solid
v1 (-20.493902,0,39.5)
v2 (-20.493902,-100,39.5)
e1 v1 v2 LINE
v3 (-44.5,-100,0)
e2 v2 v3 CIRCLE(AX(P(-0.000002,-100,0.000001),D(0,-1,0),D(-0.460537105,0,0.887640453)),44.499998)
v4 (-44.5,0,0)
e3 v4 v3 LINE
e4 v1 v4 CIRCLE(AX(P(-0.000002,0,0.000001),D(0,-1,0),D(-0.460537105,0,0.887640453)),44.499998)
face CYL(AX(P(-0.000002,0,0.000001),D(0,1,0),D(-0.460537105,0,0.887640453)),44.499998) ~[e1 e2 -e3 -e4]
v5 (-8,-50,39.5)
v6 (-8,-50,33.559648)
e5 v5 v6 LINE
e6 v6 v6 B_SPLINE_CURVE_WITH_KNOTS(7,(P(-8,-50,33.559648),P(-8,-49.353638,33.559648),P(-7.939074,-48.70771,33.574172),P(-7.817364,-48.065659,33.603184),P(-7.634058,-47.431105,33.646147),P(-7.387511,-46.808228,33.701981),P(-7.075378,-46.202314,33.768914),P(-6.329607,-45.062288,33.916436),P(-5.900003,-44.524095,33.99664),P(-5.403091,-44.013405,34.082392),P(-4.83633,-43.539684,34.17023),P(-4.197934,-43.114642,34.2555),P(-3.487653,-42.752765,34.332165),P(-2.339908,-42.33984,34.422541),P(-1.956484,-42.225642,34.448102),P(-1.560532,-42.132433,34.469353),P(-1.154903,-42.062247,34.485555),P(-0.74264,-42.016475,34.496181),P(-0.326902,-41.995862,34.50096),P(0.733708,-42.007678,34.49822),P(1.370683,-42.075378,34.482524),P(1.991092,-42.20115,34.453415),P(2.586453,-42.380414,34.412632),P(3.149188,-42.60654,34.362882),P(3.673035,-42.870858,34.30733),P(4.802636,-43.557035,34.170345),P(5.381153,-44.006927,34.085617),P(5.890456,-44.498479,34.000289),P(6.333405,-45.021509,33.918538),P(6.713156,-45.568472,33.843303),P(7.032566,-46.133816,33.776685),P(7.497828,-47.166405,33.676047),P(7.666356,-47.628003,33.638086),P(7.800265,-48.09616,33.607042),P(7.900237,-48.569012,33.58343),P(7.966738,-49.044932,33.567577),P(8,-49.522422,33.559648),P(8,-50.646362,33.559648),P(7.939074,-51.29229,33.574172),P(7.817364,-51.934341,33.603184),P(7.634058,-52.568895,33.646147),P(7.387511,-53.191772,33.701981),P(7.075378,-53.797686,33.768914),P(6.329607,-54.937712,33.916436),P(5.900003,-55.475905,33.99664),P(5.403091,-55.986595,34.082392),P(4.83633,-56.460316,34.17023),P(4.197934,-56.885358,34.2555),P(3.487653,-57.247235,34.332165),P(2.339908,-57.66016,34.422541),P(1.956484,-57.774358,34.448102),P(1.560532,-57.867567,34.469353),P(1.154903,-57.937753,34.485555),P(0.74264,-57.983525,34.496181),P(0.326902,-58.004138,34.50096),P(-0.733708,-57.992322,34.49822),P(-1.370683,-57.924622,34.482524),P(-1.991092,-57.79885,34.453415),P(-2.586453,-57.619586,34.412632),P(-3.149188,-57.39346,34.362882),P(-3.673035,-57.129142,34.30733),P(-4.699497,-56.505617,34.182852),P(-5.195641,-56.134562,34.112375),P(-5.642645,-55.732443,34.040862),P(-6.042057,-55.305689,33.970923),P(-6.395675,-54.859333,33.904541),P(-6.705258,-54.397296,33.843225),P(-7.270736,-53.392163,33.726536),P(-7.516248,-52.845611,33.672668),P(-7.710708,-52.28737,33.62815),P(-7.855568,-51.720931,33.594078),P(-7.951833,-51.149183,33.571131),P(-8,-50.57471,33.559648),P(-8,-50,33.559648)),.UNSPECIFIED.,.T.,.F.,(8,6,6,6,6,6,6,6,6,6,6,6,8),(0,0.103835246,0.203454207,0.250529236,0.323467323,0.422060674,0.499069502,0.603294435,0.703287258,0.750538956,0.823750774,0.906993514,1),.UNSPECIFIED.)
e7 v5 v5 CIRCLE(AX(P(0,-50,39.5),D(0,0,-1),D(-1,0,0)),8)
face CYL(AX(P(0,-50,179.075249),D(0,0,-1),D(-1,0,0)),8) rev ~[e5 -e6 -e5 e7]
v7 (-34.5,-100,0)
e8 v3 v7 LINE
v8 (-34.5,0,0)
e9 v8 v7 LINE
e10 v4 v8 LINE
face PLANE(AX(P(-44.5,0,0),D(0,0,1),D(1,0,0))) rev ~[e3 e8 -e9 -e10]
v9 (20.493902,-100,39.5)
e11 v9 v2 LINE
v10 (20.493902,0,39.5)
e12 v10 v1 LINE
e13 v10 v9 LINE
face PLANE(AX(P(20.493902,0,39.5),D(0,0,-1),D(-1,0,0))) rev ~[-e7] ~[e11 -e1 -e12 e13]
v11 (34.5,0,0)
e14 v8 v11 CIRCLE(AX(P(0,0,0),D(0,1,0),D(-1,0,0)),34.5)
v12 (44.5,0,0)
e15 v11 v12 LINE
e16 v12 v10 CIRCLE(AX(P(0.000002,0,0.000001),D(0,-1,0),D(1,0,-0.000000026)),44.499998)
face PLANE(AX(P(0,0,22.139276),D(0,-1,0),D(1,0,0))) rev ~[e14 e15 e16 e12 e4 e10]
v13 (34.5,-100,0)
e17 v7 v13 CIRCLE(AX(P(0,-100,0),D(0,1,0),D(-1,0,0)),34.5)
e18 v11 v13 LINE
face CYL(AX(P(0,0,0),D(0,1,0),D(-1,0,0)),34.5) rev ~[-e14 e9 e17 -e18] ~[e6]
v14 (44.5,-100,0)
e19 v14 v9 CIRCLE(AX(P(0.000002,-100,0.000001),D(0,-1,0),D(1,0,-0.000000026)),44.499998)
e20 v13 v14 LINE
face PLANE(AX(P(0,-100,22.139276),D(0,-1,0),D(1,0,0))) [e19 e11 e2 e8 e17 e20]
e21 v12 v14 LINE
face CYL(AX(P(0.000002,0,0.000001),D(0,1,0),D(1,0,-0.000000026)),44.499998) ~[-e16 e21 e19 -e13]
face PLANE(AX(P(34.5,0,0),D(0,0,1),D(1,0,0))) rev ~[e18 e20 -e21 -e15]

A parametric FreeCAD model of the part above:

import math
import FreeCAD as App
import Part
import Sketcher
from FreeCAD import Vector

doc = App.newDocument("Part")
params = doc.addObject("Spreadsheet::Sheet", "Params")
for row, (alias, value) in enumerate([
    ("sketch1_radius", "44.499998 mm"),
    ("sketch1_radius2", "34.5 mm"),
    ("pad1_length", "100 mm"),
    ("sketch2_diameter", "16 mm"),
    ("hole_diameter", "16 mm"),
], start=1):
    params.set(f"A{row}", alias)
    params.set(f"B{row}", "=" + value)
    params.setAlias(f"B{row}", alias)

body = doc.addObject("PartDesign::Body", "Body")

sketch1 = body.newObject("Sketcher::SketchObject", "Sketch")
sketch1.AttachmentSupport = (doc.getObject("XZ_Plane"), [""])
sketch1.MapMode = "FlatFace"
sketch1.addGeometry([
    Part.LineSegment(Vector(34.5, 0, 0), Vector(44.5, 0, 0)),
    Part.ArcOfCircle(Part.Circle(Vector(0.000002, 0.000001, 0), Vector(0, 0, 1), 44.499998), math.radians(-0.000001), math.radians(62.578229)),
    Part.LineSegment(Vector(20.493902, 39.5, 0), Vector(-20.493902, 39.5, 0)),
    Part.ArcOfCircle(Part.Circle(Vector(-0.000002, 0.000001, 0), Vector(0, 0, 1), 44.499998), math.radians(117.421771), math.radians(180.000001)),
    Part.LineSegment(Vector(-44.5, 0, 0), Vector(-34.5, 0, 0)),
    Part.ArcOfCircle(Part.Circle(Vector(0, 0, 0), Vector(0, 0, 1), 34.5), math.radians(0), math.radians(180)),
], False)
sketch1.addConstraint([
    Sketcher.Constraint("Coincident", 0, 2, 1, 1),
    Sketcher.Constraint("Coincident", 1, 2, 2, 1),
    Sketcher.Constraint("Coincident", 2, 2, 3, 1),
    Sketcher.Constraint("Coincident", 3, 2, 4, 1),
    Sketcher.Constraint("Coincident", 4, 2, 5, 2),
    Sketcher.Constraint("Coincident", 5, 1, 0, 1),
    Sketcher.Constraint("Horizontal", 0),
    Sketcher.Constraint("Horizontal", 2),
    Sketcher.Constraint("Horizontal", 4),
    Sketcher.Constraint("Coincident", 1, 3, -1, 1),
    Sketcher.Constraint("Coincident", 3, 3, -1, 1),
    Sketcher.Constraint("Coincident", 5, 3, -1, 1),
    Sketcher.Constraint("Equal", 1, 3),
    Sketcher.Constraint("PointOnObject", 0, 2, -1),
    Sketcher.Constraint("PointOnObject", 3, 2, -1),
    Sketcher.Constraint("Radius", 1, 44.499998),
    Sketcher.Constraint("Radius", 5, 34.5),
    Sketcher.Constraint("DistanceY", -1, 1, 1, 2, 39.5),
])
sketch1.setExpression("Constraints[15]", "Params.sketch1_radius")
sketch1.setExpression("Constraints[16]", "Params.sketch1_radius2")
pad1 = body.newObject("PartDesign::Pad", "Pad")
pad1.Profile = sketch1
pad1.setExpression("Length", "Params.pad1_length")

sketch2 = body.newObject("Sketcher::SketchObject", "Sketch001")
sketch2.AttachmentSupport = (doc.getObject("XY_Plane"), [""])
sketch2.MapMode = "FlatFace"
sketch2.AttachmentOffset = App.Placement(Vector(0, 0, 39.5), App.Rotation())
sketch2.addGeometry(Part.Circle(Vector(0, -50, 0), Vector(0, 0, 1), 8), False)
sketch2.addConstraint([
    Sketcher.Constraint("PointOnObject", 0, 3, -2),
    Sketcher.Constraint("Diameter", 0, 16.0),
    Sketcher.Constraint("DistanceY", 0, 3, -1, 1, 50.0),
])
sketch2.setExpression("Constraints[1]", "Params.sketch2_diameter")
doc.recompute()
hole = body.newObject("PartDesign::Hole", "Hole")
hole.Profile = sketch2
hole.ThreadType = "None"
hole.setExpression("Diameter", "Params.hole_diameter")
hole.DepthType = "ThroughAll"

doc.recompute()
